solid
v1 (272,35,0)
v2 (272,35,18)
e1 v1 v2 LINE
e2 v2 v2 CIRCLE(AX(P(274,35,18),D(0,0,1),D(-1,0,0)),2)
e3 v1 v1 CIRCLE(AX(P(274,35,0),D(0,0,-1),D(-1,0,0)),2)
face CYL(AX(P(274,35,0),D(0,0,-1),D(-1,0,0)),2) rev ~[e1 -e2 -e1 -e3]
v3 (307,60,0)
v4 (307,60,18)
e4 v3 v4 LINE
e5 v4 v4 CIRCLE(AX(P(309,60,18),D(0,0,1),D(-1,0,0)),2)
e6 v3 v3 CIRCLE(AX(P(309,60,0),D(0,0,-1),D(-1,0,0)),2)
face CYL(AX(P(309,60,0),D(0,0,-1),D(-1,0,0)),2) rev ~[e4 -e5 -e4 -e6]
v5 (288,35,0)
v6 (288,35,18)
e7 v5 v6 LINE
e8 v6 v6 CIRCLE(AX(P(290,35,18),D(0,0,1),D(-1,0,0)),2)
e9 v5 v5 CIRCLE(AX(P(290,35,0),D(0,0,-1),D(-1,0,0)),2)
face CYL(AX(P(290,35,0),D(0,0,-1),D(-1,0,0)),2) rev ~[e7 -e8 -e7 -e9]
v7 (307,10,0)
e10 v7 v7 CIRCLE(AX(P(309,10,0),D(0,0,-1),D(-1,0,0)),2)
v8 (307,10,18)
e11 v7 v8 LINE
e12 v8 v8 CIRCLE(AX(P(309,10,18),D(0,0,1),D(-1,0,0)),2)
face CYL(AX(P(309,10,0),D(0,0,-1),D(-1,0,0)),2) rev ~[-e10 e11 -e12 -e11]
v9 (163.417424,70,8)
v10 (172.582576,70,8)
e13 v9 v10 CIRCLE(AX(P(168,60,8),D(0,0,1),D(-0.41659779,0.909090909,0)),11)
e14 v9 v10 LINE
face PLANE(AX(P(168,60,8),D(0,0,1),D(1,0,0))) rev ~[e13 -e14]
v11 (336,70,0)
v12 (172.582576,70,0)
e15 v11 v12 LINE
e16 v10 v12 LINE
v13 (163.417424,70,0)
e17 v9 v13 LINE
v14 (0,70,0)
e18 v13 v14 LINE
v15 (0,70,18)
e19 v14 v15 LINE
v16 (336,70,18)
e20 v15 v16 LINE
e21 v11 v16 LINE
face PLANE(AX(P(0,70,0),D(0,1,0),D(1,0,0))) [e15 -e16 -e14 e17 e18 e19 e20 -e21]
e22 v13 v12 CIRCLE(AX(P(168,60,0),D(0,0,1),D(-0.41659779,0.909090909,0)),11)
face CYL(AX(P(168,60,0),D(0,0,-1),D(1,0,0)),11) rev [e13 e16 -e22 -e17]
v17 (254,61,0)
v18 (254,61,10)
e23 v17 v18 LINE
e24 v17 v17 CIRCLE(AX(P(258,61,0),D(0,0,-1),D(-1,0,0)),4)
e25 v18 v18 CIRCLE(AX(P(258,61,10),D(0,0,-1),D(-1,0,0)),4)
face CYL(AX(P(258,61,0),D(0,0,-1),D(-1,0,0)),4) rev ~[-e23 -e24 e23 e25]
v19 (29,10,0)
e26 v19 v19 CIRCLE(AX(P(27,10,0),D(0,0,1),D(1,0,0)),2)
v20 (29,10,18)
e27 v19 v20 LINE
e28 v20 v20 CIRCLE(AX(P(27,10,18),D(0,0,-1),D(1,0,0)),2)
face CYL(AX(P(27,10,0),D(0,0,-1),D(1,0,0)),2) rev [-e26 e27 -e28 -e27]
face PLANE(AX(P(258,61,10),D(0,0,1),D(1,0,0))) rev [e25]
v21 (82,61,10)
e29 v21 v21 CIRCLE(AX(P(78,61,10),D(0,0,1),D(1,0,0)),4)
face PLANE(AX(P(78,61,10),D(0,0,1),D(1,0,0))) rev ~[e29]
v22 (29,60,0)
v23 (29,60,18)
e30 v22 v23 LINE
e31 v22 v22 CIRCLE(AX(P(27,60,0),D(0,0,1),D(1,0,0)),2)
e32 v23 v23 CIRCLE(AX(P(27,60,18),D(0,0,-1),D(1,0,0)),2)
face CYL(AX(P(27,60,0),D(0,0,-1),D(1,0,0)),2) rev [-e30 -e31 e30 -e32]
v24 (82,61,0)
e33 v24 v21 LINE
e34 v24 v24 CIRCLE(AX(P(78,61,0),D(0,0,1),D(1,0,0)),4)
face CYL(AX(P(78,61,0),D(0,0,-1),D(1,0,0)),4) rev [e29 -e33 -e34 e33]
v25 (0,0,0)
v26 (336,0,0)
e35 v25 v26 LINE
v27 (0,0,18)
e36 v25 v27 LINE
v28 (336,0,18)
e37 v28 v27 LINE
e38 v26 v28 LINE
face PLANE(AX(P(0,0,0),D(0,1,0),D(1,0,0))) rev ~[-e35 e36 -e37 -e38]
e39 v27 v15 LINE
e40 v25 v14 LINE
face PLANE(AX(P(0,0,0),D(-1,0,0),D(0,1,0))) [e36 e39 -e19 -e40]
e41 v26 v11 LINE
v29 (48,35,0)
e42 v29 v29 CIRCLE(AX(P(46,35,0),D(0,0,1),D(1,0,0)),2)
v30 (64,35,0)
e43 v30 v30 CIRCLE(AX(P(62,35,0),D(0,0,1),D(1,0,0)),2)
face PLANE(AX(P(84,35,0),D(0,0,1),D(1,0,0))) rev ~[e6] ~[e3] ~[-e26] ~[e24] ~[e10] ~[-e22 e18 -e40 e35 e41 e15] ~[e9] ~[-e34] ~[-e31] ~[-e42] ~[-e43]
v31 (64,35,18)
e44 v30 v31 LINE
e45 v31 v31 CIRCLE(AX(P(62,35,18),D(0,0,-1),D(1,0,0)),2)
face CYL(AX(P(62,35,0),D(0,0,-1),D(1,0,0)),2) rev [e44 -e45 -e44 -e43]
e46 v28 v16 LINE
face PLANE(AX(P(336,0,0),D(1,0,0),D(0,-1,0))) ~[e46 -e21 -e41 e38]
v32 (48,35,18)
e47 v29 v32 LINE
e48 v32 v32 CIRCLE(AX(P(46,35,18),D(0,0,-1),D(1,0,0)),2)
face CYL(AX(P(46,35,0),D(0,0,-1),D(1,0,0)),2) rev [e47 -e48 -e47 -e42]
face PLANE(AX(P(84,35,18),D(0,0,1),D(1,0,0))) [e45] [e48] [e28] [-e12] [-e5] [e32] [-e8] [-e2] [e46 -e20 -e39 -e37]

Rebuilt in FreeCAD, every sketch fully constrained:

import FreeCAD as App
import Part
import Sketcher
from FreeCAD import Vector

doc = App.newDocument("Part")
params = doc.addObject("Spreadsheet::Sheet", "Params")
for row, (alias, value) in enumerate([
    ("sketch1_diameter", "22 mm"),
    ("pad1_length", "8 mm"),
    ("sketch2_diameter", "8 mm"),
    ("pad2_length", "10 mm"),
    ("sketch3_diameter", "4 mm"),
    ("pad3_length", "25 mm"),
    ("sketch4_diameter", "4 mm"),
    ("pad4_length", "25 mm"),
    ("sketch5_diameter", "4 mm"),
    ("pad5_length", "25 mm"),
    ("sketch6_diameter", "4 mm"),
    ("pad6_length", "25 mm"),
    ("sketch7_width", "168 mm"),
    ("sketch7_height", "70 mm"),
    ("pad7_length", "18 mm"),
], start=1):
    params.set(f"A{row}", alias)
    params.set(f"B{row}", "=" + value)
    params.setAlias(f"B{row}", alias)

body = doc.addObject("PartDesign::Body", "Body")

sketch1 = doc.addObject("Sketcher::SketchObject", "Sketch")
body.addObject(sketch1)
sketch1.AttachmentSupport = (doc.XY_Plane, [""])
sketch1.MapMode = "FlatFace"
sketch1.addGeometry(Part.Circle(Vector(168, 60, 0), Vector(0, 0, 1), 11), False)
sketch1.addConstraint([
    Sketcher.Constraint("Diameter", 0, 22.0),
    Sketcher.Constraint("DistanceX", -1, 1, 0, 3, 168.0),
    Sketcher.Constraint("DistanceY", -1, 1, 0, 3, 60.0),
])
sketch1.setExpression("Constraints[0]", "Params.sketch1_diameter")
pad1 = doc.addObject("PartDesign::Pad", "Pad")
body.addObject(pad1)
pad1.Profile = sketch1
pad1.setExpression("Length", "Params.pad1_length")
body2 = doc.addObject("PartDesign::Body", "Body001")

sketch2 = doc.addObject("Sketcher::SketchObject", "Sketch001")
body2.addObject(sketch2)
sketch2.AttachmentSupport = (doc.getObject("XY_Plane001"), [""])
sketch2.MapMode = "FlatFace"
sketch2.addGeometry(Part.Circle(Vector(78, 61, 0), Vector(0, 0, 1), 4), False)
sketch2.addConstraint([
    Sketcher.Constraint("Diameter", 0, 8.0),
    Sketcher.Constraint("DistanceX", -1, 1, 0, 3, 78.0),
    Sketcher.Constraint("DistanceY", -1, 1, 0, 3, 61.0),
])
sketch2.setExpression("Constraints[0]", "Params.sketch2_diameter")
pad2 = doc.addObject("PartDesign::Pad", "Pad001")
body2.addObject(pad2)
pad2.Profile = sketch2
pad2.setExpression("Length", "Params.pad2_length")
body3 = doc.addObject("PartDesign::Body", "Body002")

sketch3 = doc.addObject("Sketcher::SketchObject", "Sketch002")
body3.addObject(sketch3)
sketch3.AttachmentSupport = (doc.getObject("XY_Plane002"), [""])
sketch3.MapMode = "FlatFace"
sketch3.addGeometry(Part.Circle(Vector(46, 35, 0), Vector(0, 0, 1), 2), False)
sketch3.addConstraint([
    Sketcher.Constraint("Diameter", 0, 4.0),
    Sketcher.Constraint("DistanceX", -1, 1, 0, 3, 46.0),
    Sketcher.Constraint("DistanceY", -1, 1, 0, 3, 35.0),
])
sketch3.setExpression("Constraints[0]", "Params.sketch3_diameter")
pad3 = doc.addObject("PartDesign::Pad", "Pad002")
body3.addObject(pad3)
pad3.Profile = sketch3
pad3.setExpression("Length", "Params.pad3_length")
body4 = doc.addObject("PartDesign::Body", "Body003")

sketch4 = doc.addObject("Sketcher::SketchObject", "Sketch003")
body4.addObject(sketch4)
sketch4.AttachmentSupport = (doc.getObject("XY_Plane003"), [""])
sketch4.MapMode = "FlatFace"
sketch4.addGeometry(Part.Circle(Vector(27, 60, 0), Vector(0, 0, 1), 2), False)
sketch4.addConstraint([
    Sketcher.Constraint("Diameter", 0, 4.0),
    Sketcher.Constraint("DistanceX", -1, 1, 0, 3, 27.0),
    Sketcher.Constraint("DistanceY", -1, 1, 0, 3, 60.0),
])
sketch4.setExpression("Constraints[0]", "Params.sketch4_diameter")
pad4 = doc.addObject("PartDesign::Pad", "Pad003")
body4.addObject(pad4)
pad4.Profile = sketch4
pad4.setExpression("Length", "Params.pad4_length")
body5 = doc.addObject("PartDesign::Body", "Body004")

sketch5 = doc.addObject("Sketcher::SketchObject", "Sketch004")
body5.addObject(sketch5)
sketch5.AttachmentSupport = (doc.getObject("XY_Plane004"), [""])
sketch5.MapMode = "FlatFace"
sketch5.addGeometry(Part.Circle(Vector(27, 10, 0), Vector(0, 0, 1), 2), False)
sketch5.addConstraint([
    Sketcher.Constraint("Diameter", 0, 4.0),
    Sketcher.Constraint("DistanceX", -1, 1, 0, 3, 27.0),
    Sketcher.Constraint("DistanceY", -1, 1, 0, 3, 10.0),
])
sketch5.setExpression("Constraints[0]", "Params.sketch5_diameter")
pad5 = doc.addObject("PartDesign::Pad", "Pad004")
body5.addObject(pad5)
pad5.Profile = sketch5
pad5.setExpression("Length", "Params.pad5_length")
body6 = doc.addObject("PartDesign::Body", "Body005")
body6.AllowCompound = True

sketch6 = doc.addObject("Sketcher::SketchObject", "Sketch005")
body6.addObject(sketch6)
sketch6.AttachmentSupport = (doc.getObject("XY_Plane005"), [""])
sketch6.MapMode = "FlatFace"
sketch6.addGeometry(Part.Circle(Vector(62, 35, 0), Vector(0, 0, 1), 2), False)
sketch6.addConstraint([
    Sketcher.Constraint("Diameter", 0, 4.0),
    Sketcher.Constraint("DistanceX", -1, 1, 0, 3, 62.0),
    Sketcher.Constraint("DistanceY", -1, 1, 0, 3, 35.0),
])
sketch6.setExpression("Constraints[0]", "Params.sketch6_diameter")
pad6 = doc.addObject("PartDesign::Pad", "Pad005")
body6.addObject(pad6)
pad6.Profile = sketch6
pad6.setExpression("Length", "Params.pad6_length")
doc.recompute()

boolean = doc.addObject("PartDesign::Boolean", "Boolean")
body6.addObject(boolean)
boolean.Type = "Fuse"
boolean.addObjects([body2])
doc.recompute()

boolean2 = doc.addObject("PartDesign::Boolean", "Boolean001")
body6.addObject(boolean2)
boolean2.Type = "Fuse"
boolean2.addObjects([body3])
doc.recompute()

boolean3 = doc.addObject("PartDesign::Boolean", "Boolean002")
body6.addObject(boolean3)
boolean3.Type = "Fuse"
boolean3.addObjects([body4])
doc.recompute()

boolean4 = doc.addObject("PartDesign::Boolean", "Boolean003")
body6.addObject(boolean4)
boolean4.Type = "Fuse"
boolean4.addObjects([body5])
body7 = doc.addObject("PartDesign::Body", "Body006")

sketch7 = doc.addObject("Sketcher::SketchObject", "Sketch006")
body7.addObject(sketch7)
sketch7.AttachmentSupport = (doc.getObject("XY_Plane006"), [""])
sketch7.MapMode = "FlatFace"
sketch7.addGeometry([
    Part.LineSegment(Vector(0, 70, 0), Vector(0, 0, 0)),
    Part.LineSegment(Vector(0, 0, 0), Vector(168, 0, 0)),
    Part.LineSegment(Vector(168, 0, 0), Vector(168, 70, 0)),
    Part.LineSegment(Vector(168, 70, 0), Vector(0, 70, 0)),
], False)
sketch7.addConstraint([
    Sketcher.Constraint("Coincident", 0, 2, 1, 1),
    Sketcher.Constraint("Coincident", 1, 2, 2, 1),
    Sketcher.Constraint("Coincident", 2, 2, 3, 1),
    Sketcher.Constraint("Coincident", 3, 2, 0, 1),
    Sketcher.Constraint("Vertical", 0),
    Sketcher.Constraint("Horizontal", 1),
    Sketcher.Constraint("Vertical", 2),
    Sketcher.Constraint("Horizontal", 3),
    Sketcher.Constraint("Coincident", 0, 2, -1, 1),
    Sketcher.Constraint("DistanceX", 1, 1, 1, 2, 168.0),
    Sketcher.Constraint("DistanceY", 0, 2, 0, 1, 70.0),
])
sketch7.setExpression("Constraints[9]", "Params.sketch7_width")
sketch7.setExpression("Constraints[10]", "Params.sketch7_height")
pad7 = doc.addObject("PartDesign::Pad", "Pad006")
body7.addObject(pad7)
pad7.Profile = sketch7
pad7.setExpression("Length", "Params.pad7_length")
doc.recompute()

boolean5 = doc.addObject("PartDesign::Boolean", "Boolean004")
body7.addObject(boolean5)
boolean5.Type = "Cut"
boolean5.addObjects([body6])
body8 = doc.addObject("PartDesign::Body", "Body007")
doc.recompute()

mirroring = doc.addObject("Part::Mirroring", "Mirroring")
mirroring.Source = body7
mirroring.Base = Vector(168, 0, 0)
mirroring.Normal = Vector(1, 0, 0)
body8.BaseFeature = mirroring
doc.recompute()

boolean6 = doc.addObject("PartDesign::Boolean", "Boolean005")
body8.addObject(boolean6)
boolean6.Type = "Fuse"
boolean6.addObjects([body7])
doc.recompute()

boolean7 = doc.addObject("PartDesign::Boolean", "Boolean006")
body8.addObject(boolean7)
boolean7.Type = "Cut"
boolean7.addObjects([body])
mirroring.Visibility = False

doc.recompute()
